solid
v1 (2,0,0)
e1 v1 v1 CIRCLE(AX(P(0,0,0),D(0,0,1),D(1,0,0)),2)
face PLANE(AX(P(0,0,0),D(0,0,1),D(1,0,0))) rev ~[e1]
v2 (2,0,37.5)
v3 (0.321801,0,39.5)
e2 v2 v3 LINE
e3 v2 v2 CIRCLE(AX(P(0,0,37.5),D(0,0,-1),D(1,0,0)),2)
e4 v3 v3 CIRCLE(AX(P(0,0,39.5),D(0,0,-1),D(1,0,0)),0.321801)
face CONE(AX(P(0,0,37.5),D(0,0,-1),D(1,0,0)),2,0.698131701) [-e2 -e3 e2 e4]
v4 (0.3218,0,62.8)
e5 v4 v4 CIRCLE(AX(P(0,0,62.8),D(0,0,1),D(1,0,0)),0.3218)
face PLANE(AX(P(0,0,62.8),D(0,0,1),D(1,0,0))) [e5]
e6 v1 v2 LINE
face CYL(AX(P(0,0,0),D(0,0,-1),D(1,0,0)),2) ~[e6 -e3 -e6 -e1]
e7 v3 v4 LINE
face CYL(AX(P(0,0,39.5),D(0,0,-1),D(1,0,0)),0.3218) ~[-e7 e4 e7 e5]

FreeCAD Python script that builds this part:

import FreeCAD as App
import Part
import Sketcher

V = App.Vector

doc = App.newDocument("Part")
body = doc.addObject("PartDesign::Body", "Body")

sketch1 = doc.addObject("Sketcher::SketchObject", "Sketch")
body.addObject(sketch1)
sketch1.AttachmentSupport = (doc.XY_Plane, [""])
sketch1.MapMode = "FlatFace"
sketch1.addGeometry(Part.Circle(V(0, 0, 0), V(0, 0, 1), 2), False)
sketch1.addConstraint([
    Sketcher.Constraint("Coincident", 0, 3, -1, 1),
    Sketcher.Constraint("Diameter", 0, 4.0),
])
pad1 = doc.addObject("PartDesign::Pad", "Pad")
body.addObject(pad1)
pad1.Profile = sketch1
pad1.Length = 37.5

sketch2 = doc.addObject("Sketcher::SketchObject", "Sketch001")
body.addObject(sketch2)
sketch2.AttachmentSupport = (doc.XY_Plane, [""])
sketch2.MapMode = "FlatFace"
sketch2.AttachmentOffset = App.Placement(V(0, 0, 37.5), App.Rotation())
sketch2.addGeometry(Part.Circle(V(0, 0, 0), V(0, 0, 1), 2), False)
sketch2.addConstraint([
    Sketcher.Constraint("Coincident", 0, 3, -1, 1),
    Sketcher.Constraint("Diameter", 0, 4.0),
])
pad2 = doc.addObject("PartDesign::Pad", "Pad001")
body.addObject(pad2)
pad2.Profile = sketch2
pad2.Length = 2
pad2.TaperAngle = -40

sketch3 = doc.addObject("Sketcher::SketchObject", "Sketch002")
body.addObject(sketch3)
sketch3.AttachmentSupport = (doc.XY_Plane, [""])
sketch3.MapMode = "FlatFace"
sketch3.AttachmentOffset = App.Placement(V(0, 0, 39.5), App.Rotation())
sketch3.addGeometry(Part.Circle(V(0, 0, 0), V(0, 0, 1), 0.32), False)
sketch3.addConstraint([
    Sketcher.Constraint("Coincident", 0, 3, -1, 1),
    Sketcher.Constraint("Diameter", 0, 0.6436),
])
pad3 = doc.addObject("PartDesign::Pad", "Pad002")
body.addObject(pad3)
pad3.Profile = sketch3
pad3.Length = 23.3

doc.recompute()
